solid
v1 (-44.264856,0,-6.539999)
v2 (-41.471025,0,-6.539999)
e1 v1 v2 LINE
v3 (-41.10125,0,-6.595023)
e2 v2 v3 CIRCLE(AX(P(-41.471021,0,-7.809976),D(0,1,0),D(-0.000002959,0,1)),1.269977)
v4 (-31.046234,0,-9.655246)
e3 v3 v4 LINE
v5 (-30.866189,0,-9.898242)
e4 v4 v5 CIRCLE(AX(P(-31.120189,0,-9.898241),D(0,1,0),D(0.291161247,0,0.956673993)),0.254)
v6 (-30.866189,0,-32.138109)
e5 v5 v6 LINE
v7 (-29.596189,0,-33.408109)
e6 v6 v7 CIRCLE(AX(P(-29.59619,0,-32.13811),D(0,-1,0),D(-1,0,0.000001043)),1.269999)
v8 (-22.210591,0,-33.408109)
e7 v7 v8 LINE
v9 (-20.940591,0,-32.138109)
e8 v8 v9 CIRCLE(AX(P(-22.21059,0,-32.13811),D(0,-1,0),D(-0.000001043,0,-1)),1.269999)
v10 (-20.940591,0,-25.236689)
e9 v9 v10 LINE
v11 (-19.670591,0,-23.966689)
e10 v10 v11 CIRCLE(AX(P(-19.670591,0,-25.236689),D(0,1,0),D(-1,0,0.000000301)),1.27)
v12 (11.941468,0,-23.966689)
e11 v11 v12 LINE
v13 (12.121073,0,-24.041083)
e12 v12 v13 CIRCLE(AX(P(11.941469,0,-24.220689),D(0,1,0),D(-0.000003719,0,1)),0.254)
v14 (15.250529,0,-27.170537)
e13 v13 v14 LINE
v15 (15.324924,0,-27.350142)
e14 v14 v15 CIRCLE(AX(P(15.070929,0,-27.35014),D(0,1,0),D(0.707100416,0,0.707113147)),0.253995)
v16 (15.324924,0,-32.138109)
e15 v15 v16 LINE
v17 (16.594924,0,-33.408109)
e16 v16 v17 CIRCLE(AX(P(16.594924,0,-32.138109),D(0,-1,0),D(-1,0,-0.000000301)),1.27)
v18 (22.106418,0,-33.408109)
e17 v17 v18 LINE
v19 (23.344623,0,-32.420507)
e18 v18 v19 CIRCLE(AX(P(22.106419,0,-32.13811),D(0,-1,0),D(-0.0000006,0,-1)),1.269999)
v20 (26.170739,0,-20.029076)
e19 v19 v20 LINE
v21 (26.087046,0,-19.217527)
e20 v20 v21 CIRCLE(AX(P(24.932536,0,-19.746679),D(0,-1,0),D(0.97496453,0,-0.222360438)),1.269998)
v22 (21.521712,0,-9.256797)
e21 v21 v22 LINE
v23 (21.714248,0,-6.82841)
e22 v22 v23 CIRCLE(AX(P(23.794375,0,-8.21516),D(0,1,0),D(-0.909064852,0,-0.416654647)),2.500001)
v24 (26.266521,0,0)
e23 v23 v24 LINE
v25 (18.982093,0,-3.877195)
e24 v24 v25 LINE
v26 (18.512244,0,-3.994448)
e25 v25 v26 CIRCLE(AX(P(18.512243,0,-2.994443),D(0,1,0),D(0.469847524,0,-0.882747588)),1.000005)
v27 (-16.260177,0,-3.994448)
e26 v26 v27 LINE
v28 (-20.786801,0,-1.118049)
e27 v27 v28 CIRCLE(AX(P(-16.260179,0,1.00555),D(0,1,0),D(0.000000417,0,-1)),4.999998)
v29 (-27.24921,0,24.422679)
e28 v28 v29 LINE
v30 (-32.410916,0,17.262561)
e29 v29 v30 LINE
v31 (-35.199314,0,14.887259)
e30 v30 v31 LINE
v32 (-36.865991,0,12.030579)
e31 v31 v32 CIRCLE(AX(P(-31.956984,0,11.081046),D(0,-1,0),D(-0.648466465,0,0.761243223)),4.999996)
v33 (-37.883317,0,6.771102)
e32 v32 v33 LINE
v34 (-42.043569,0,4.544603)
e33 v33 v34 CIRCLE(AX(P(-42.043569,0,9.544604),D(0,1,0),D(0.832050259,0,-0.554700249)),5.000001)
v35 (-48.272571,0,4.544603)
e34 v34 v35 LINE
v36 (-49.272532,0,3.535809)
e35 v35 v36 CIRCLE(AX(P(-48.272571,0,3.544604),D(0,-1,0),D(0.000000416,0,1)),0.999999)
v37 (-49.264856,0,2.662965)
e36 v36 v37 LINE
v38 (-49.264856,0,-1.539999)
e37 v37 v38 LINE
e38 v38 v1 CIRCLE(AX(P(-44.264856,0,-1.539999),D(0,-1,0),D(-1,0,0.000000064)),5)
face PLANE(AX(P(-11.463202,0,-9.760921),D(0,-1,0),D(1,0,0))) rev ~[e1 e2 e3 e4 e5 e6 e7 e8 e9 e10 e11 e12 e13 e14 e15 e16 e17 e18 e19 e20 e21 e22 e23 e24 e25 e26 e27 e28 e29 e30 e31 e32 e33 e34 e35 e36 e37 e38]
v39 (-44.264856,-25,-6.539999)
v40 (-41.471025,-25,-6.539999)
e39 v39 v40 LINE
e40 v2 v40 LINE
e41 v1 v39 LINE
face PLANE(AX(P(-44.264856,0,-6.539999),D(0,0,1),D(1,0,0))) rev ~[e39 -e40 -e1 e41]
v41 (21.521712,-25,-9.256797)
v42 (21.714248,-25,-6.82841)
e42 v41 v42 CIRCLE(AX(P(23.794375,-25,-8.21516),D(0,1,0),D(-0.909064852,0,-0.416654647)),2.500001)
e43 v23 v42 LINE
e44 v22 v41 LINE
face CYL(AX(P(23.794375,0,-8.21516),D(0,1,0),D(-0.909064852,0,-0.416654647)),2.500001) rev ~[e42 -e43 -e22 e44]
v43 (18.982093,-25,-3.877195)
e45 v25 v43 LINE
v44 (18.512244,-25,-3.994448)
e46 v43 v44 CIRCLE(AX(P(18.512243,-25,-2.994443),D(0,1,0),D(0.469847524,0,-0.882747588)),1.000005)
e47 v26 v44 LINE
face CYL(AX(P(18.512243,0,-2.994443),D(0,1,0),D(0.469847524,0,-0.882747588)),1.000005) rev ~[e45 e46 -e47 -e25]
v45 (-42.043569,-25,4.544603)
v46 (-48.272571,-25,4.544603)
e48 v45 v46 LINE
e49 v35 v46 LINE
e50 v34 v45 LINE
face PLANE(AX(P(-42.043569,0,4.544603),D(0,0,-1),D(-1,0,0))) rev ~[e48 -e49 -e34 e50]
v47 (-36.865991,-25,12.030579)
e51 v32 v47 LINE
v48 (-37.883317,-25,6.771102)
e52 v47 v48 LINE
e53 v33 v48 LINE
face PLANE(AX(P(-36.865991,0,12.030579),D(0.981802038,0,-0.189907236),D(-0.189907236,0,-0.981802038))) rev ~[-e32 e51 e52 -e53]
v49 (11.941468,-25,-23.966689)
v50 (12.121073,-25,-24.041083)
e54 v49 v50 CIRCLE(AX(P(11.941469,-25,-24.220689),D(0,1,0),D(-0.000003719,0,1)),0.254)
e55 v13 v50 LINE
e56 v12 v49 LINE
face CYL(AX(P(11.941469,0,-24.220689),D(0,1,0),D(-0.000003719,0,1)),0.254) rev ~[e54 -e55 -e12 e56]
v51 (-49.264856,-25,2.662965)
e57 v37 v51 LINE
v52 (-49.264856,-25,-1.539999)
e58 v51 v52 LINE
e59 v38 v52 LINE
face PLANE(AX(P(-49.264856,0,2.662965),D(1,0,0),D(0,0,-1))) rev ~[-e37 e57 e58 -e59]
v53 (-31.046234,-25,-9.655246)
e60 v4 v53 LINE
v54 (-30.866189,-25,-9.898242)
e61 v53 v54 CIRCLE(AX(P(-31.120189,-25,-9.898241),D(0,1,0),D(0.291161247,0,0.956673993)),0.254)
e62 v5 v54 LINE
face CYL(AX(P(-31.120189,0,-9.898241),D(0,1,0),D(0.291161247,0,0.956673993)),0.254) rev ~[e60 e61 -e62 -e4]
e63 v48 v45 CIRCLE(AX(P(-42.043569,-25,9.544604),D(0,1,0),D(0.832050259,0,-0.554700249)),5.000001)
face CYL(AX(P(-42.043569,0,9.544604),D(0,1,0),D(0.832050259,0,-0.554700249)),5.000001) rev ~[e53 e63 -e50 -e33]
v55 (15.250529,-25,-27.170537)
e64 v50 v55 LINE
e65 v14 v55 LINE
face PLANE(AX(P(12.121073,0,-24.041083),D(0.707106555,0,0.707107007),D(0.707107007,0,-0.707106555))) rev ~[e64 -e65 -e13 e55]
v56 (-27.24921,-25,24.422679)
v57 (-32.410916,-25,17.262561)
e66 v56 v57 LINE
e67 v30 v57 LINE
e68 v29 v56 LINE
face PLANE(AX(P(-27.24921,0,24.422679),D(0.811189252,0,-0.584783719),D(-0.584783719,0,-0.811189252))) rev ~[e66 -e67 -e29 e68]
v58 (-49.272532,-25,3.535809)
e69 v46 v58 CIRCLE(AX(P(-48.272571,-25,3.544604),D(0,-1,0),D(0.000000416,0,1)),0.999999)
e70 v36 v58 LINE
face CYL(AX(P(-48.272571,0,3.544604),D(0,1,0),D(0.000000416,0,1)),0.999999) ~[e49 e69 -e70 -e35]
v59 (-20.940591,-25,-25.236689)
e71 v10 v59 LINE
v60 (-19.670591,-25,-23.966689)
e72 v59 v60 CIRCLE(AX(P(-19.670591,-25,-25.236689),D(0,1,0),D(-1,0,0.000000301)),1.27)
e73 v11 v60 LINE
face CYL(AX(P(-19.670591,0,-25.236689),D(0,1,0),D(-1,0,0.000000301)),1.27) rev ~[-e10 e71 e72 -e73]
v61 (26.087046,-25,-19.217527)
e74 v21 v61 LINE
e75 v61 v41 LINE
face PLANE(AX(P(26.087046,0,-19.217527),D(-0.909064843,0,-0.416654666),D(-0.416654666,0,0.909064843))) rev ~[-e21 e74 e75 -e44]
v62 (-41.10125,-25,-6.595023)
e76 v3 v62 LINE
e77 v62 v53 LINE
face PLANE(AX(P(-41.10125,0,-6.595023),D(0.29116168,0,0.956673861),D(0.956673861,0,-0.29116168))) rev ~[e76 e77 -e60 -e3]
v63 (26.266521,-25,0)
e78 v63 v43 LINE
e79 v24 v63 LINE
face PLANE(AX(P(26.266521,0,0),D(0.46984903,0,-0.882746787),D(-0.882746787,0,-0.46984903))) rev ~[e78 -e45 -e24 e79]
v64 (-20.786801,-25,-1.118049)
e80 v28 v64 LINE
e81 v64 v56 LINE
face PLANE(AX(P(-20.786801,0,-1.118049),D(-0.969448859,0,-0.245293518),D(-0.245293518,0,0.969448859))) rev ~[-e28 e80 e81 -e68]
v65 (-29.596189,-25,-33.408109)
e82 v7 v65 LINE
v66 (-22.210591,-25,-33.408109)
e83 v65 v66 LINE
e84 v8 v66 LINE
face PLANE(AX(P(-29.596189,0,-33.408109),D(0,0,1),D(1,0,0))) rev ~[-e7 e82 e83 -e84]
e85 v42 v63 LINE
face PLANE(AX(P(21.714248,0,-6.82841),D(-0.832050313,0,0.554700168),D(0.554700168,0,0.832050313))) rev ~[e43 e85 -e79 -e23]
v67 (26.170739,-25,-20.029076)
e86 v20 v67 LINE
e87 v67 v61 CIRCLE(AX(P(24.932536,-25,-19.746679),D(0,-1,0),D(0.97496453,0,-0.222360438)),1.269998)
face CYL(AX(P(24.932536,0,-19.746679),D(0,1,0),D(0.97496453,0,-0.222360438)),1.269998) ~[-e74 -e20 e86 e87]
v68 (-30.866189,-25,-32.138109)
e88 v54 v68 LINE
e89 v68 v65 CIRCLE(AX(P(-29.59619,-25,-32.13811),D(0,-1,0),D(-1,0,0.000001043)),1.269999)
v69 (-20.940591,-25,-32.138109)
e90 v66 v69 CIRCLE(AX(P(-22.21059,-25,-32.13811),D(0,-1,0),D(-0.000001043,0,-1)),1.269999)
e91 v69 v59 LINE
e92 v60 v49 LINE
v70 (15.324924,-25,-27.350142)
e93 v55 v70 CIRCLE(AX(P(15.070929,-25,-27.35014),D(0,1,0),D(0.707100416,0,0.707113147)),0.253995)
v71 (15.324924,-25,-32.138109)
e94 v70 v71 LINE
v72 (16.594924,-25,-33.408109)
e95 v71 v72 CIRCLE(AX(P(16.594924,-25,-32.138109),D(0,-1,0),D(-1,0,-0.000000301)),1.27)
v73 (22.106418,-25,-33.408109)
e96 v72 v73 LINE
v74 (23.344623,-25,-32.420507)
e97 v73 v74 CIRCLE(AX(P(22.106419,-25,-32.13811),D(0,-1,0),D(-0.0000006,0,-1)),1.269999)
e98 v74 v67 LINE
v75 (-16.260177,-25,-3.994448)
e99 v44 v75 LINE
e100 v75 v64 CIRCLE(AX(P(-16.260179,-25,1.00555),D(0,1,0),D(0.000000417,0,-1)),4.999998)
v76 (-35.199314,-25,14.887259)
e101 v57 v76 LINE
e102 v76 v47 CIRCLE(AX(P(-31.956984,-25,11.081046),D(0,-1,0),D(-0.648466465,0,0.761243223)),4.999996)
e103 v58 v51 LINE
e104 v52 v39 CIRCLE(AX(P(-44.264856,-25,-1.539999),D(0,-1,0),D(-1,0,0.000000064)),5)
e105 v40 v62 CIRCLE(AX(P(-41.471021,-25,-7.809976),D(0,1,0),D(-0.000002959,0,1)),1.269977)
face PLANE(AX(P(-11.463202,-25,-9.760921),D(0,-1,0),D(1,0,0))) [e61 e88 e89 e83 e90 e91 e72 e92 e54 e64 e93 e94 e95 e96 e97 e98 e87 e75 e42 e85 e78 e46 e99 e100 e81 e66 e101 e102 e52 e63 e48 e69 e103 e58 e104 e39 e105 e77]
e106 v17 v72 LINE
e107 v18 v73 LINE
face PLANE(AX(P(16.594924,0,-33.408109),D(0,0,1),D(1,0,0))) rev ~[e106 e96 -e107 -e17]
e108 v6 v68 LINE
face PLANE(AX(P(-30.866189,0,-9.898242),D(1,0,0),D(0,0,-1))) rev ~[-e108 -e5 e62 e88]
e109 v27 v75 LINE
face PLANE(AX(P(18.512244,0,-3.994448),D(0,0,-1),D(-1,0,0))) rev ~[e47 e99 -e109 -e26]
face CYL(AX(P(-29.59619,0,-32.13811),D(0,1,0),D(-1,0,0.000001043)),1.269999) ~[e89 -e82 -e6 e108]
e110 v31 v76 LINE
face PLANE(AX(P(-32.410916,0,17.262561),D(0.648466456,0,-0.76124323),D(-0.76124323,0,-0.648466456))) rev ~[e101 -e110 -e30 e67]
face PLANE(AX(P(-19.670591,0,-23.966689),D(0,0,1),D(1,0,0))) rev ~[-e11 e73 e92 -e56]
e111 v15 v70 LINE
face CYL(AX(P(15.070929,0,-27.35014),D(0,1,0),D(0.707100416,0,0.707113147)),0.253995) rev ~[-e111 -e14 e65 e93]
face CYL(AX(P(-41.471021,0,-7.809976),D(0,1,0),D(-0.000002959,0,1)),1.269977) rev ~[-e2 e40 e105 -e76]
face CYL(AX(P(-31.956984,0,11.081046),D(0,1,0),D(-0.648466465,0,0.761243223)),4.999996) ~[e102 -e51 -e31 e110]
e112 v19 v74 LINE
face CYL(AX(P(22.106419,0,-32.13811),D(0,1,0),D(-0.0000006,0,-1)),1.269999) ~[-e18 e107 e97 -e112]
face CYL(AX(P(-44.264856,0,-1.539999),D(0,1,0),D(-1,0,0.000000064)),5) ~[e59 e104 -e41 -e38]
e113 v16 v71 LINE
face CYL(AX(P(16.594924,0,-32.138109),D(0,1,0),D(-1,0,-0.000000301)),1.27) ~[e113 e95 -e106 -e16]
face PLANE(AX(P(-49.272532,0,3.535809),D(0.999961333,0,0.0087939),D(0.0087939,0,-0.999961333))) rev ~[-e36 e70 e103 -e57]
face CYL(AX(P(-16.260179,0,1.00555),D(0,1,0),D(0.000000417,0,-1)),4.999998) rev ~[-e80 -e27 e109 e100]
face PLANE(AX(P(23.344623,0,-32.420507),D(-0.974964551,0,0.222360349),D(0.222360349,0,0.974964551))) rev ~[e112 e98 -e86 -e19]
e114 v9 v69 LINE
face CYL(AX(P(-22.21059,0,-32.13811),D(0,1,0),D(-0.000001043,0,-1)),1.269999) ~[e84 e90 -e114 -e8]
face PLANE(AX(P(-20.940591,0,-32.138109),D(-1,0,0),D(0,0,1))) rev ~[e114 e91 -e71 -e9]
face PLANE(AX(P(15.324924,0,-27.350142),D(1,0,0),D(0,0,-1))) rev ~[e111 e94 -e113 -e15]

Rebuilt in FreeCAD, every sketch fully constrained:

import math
import FreeCAD as App
import Part
import Sketcher

V = App.Vector
Q = App.Units.Quantity

doc = App.newDocument("Part")
params = doc.addObject("Spreadsheet::Sheet", "Params")
for row, (alias, value) in enumerate([
    ("sketch1_radius", "0.01 in"),
    ("sketch1_radius2", "0.0499999 in"),
    ("sketch1_radius3", "0.0499999 in"),
    ("sketch1_radius4", "0.05 in"),
    ("sketch1_radius5", "0.01 in"),
    ("pad1_length", "25 mm"),
], start=1):
    params.set(f"A{row}", alias)
    params.set(f"B{row}", "=" + value)
    params.setAlias(f"B{row}", alias)

body = doc.addObject("PartDesign::Body", "Body")

sketch1 = doc.addObject("Sketcher::SketchObject", "Sketch")
body.addObject(sketch1)
sketch1.AttachmentSupport = (doc.XZ_Plane, [""])
sketch1.MapMode = "FlatFace"
sketch1.addGeometry([
    Part.LineSegment(V(-49.272532, 3.535809, 0), V(-49.264856, 2.662965, 0)),
    Part.LineSegment(V(-49.264856, 2.662965, 0), V(-49.264856, -1.539999, 0)),
    Part.ArcOfCircle(Part.Circle(V(-44.264856, -1.539999, 0), V(0, 0, 1), 5), math.radians(179.999996), math.radians(270.000004)),
    Part.LineSegment(V(-44.264856, -6.539999, 0), V(-41.471025, -6.539999, 0)),
    Part.ArcOfCircle(Part.Circle(V(-41.471021, -7.809976, 0), V(0, 0, 1), 1.269977), math.radians(73.072358), math.radians(90.00017)),
    Part.LineSegment(V(-41.10125, -6.595023, 0), V(-31.046234, -9.655246, 0)),
    Part.ArcOfCircle(Part.Circle(V(-31.120189, -9.898241, 0), V(0, 0, 1), 0.254), math.radians(-0.000195), math.radians(73.072509)),
    Part.LineSegment(V(-30.866189, -9.898242, 0), V(-30.866189, -32.138109, 0)),
    Part.ArcOfCircle(Part.Circle(V(-29.59619, -32.13811, 0), V(0, 0, 1), 1.269999), math.radians(179.99994), math.radians(270.00006)),
    Part.LineSegment(V(-29.596189, -33.408109, 0), V(-22.210591, -33.408109, 0)),
    Part.ArcOfCircle(Part.Circle(V(-22.21059, -32.13811, 0), V(0, 0, 1), 1.269999), math.radians(-90.00006), math.radians(0.00006)),
    Part.LineSegment(V(-20.940591, -32.138109, 0), V(-20.940591, -25.236689, 0)),
    Part.ArcOfCircle(Part.Circle(V(-19.670591, -25.236689, 0), V(0, 0, 1), 1.27), math.radians(90.000017), math.radians(179.999983)),
    Part.LineSegment(V(-19.670591, -23.966689, 0), V(11.941468, -23.966689, 0)),
    Part.ArcOfCircle(Part.Circle(V(11.941469, -24.220689, 0), V(0, 0, 1), 0.254), math.radians(45.000237), math.radians(90.000213)),
    Part.LineSegment(V(12.121073, -24.041083, 0), V(15.250529, -27.170537, 0)),
    Part.ArcOfCircle(Part.Circle(V(15.070929, -27.35014, 0), V(0, 0, 1), 0.253995), math.radians(-0.000422), math.radians(45.000516)),
    Part.LineSegment(V(15.324924, -27.350142, 0), V(15.324924, -32.138109, 0)),
    Part.ArcOfCircle(Part.Circle(V(16.594924, -32.138109, 0), V(0, 0, 1), 1.27), math.radians(-179.999983), math.radians(-90.000017)),
    Part.LineSegment(V(16.594924, -33.408109, 0), V(22.106418, -33.408109, 0)),
    Part.ArcOfCircle(Part.Circle(V(22.106419, -32.13811, 0), V(0, 0, 1), 1.269999), math.radians(-90.000034), math.radians(-12.847692)),
    Part.LineSegment(V(23.344623, -32.420507, 0), V(26.170739, -20.029076, 0)),
    Part.ArcOfCircle(Part.Circle(V(24.932536, -19.746679, 0), V(0, 0, 1), 1.269998), math.radians(-12.847711), math.radians(24.62362)),
    Part.LineSegment(V(26.087046, -19.217527, 0), V(21.521712, -9.256797, 0)),
    Part.ArcOfCircle(Part.Circle(V(23.794375, -8.21516, 0), V(0, 0, 1), 2.500001), math.radians(146.309951), math.radians(204.623561)),
    Part.LineSegment(V(21.714248, -6.82841, 0), V(26.266521, 0, 0)),
    Part.LineSegment(V(26.266521, 0, 0), V(18.982093, -3.877195, 0)),
    Part.ArcOfCircle(Part.Circle(V(18.512243, -2.994443, 0), V(0, 0, 1), 1.000005), math.radians(-89.99995), math.radians(-61.975601)),
    Part.LineSegment(V(18.512244, -3.994448, 0), V(-16.260177, -3.994448, 0)),
    Part.ArcOfCircle(Part.Circle(V(-16.260179, 1.00555, 0), V(0, 0, 1), 4.999998), math.radians(-154.867062), math.radians(-89.999976)),
    Part.LineSegment(V(-20.786801, -1.118049, 0), V(-27.24921, 24.422679, 0)),
    Part.LineSegment(V(-27.24921, 24.422679, 0), V(-32.410916, 17.262561, 0)),
    Part.LineSegment(V(-32.410916, 17.262561, 0), V(-35.199314, 14.887259, 0)),
    Part.ArcOfCircle(Part.Circle(V(-31.956984, 11.081046, 0), V(0, 0, 1), 4.999996), math.radians(130.426079), math.radians(169.052656)),
    Part.LineSegment(V(-36.865991, 12.030579, 0), V(-37.883317, 6.771102, 0)),
    Part.ArcOfCircle(Part.Circle(V(-42.043569, 9.544604, 0), V(0, 0, 1), 5.000001), math.radians(-90.000003), math.radians(-33.690071)),
    Part.LineSegment(V(-42.043569, 4.544603, 0), V(-48.272571, 4.544603, 0)),
    Part.ArcOfCircle(Part.Circle(V(-48.272571, 3.544604, 0), V(0, 0, 1), 0.999999), math.radians(89.999976), math.radians(180.503908)),
], False)
sketch1.addConstraint([
    Sketcher.Constraint("Coincident", 0, 2, 1, 1),
    Sketcher.Constraint("Coincident", 1, 2, 2, 1),
    Sketcher.Constraint("Coincident", 2, 2, 3, 1),
    Sketcher.Constraint("Coincident", 3, 2, 4, 2),
    Sketcher.Constraint("Coincident", 4, 1, 5, 1),
    Sketcher.Constraint("Coincident", 5, 2, 6, 2),
    Sketcher.Constraint("Coincident", 6, 1, 7, 1),
    Sketcher.Constraint("Coincident", 7, 2, 8, 1),
    Sketcher.Constraint("Coincident", 8, 2, 9, 1),
    Sketcher.Constraint("Coincident", 9, 2, 10, 1),
    Sketcher.Constraint("Coincident", 10, 2, 11, 1),
    Sketcher.Constraint("Coincident", 11, 2, 12, 2),
    Sketcher.Constraint("Coincident", 12, 1, 13, 1),
    Sketcher.Constraint("Coincident", 13, 2, 14, 2),
    Sketcher.Constraint("Coincident", 14, 1, 15, 1),
    Sketcher.Constraint("Coincident", 15, 2, 16, 2),
    Sketcher.Constraint("Coincident", 16, 1, 17, 1),
    Sketcher.Constraint("Coincident", 17, 2, 18, 1),
    Sketcher.Constraint("Coincident", 18, 2, 19, 1),
    Sketcher.Constraint("Coincident", 19, 2, 20, 1),
    Sketcher.Constraint("Coincident", 20, 2, 21, 1),
    Sketcher.Constraint("Coincident", 21, 2, 22, 1),
    Sketcher.Constraint("Coincident", 22, 2, 23, 1),
    Sketcher.Constraint("Coincident", 23, 2, 24, 2),
    Sketcher.Constraint("Coincident", 24, 1, 25, 1),
    Sketcher.Constraint("Coincident", 25, 2, 26, 1),
    Sketcher.Constraint("Coincident", 26, 2, 27, 2),
    Sketcher.Constraint("Coincident", 27, 1, 28, 1),
    Sketcher.Constraint("Coincident", 28, 2, 29, 2),
    Sketcher.Constraint("Coincident", 29, 1, 30, 1),
    Sketcher.Constraint("Coincident", 30, 2, 31, 1),
    Sketcher.Constraint("Coincident", 31, 2, 32, 1),
    Sketcher.Constraint("Coincident", 32, 2, 33, 1),
    Sketcher.Constraint("Coincident", 33, 2, 34, 1),
    Sketcher.Constraint("Coincident", 34, 2, 35, 2),
    Sketcher.Constraint("Coincident", 35, 1, 36, 1),
    Sketcher.Constraint("Coincident", 36, 2, 37, 1),
    Sketcher.Constraint("Coincident", 37, 2, 0, 1),
    Sketcher.Constraint("Vertical", 1),
    Sketcher.Constraint("Horizontal", 3),
    Sketcher.Constraint("Vertical", 7),
    Sketcher.Constraint("Horizontal", 9),
    Sketcher.Constraint("Vertical", 11),
    Sketcher.Constraint("Horizontal", 13),
    Sketcher.Constraint("Vertical", 17),
    Sketcher.Constraint("Horizontal", 19),
    Sketcher.Constraint("Horizontal", 28),
    Sketcher.Constraint("Horizontal", 36),
    Sketcher.Constraint("PointOnObject", 25, 2, -1),
    Sketcher.Constraint("Radius", 6, Q("0.01 in")),
    Sketcher.Constraint("Radius", 8, Q("0.0499999 in")),
    Sketcher.Constraint("Radius", 10, Q("0.0499999 in")),
    Sketcher.Constraint("Radius", 12, Q("0.05 in")),
    Sketcher.Constraint("Radius", 14, Q("0.01 in")),
    Sketcher.Constraint("Radius", 18, Q("0.05 in")),
    Sketcher.Constraint("Radius", 20, Q("0.05 in")),
    Sketcher.Constraint("Radius", 22, Q("0.0499999 in")),
    Sketcher.Constraint("DistanceX", 9, 2, 12, 3, Q("0.1 in")),
    Sketcher.Constraint("DistanceX", 10, 3, 12, 1, Q("0.0999999 in")),
    Sketcher.Constraint("Radius", 2, 5.0),
    Sketcher.Constraint("Radius", 24, 2.500001),
    Sketcher.Constraint("Radius", 35, 5.000001),
    Sketcher.Constraint("Radius", 37, 0.999999),
    Sketcher.Constraint("DistanceX", 16, 3, 18, 3, Q("0.0599998 in")),
    Sketcher.Constraint("DistanceX", 7, 2, 8, 2, Q("0.05 in")),
    Sketcher.Constraint("DistanceY", 8, 2, 7, 2, Q("0.05 in")),
    Sketcher.Constraint("DistanceY", 9, 2, 10, 2, Q("0.05 in")),
    Sketcher.Constraint("DistanceY", 11, 2, 12, 1, Q("0.05 in")),
    Sketcher.Constraint("DistanceX", 17, 2, 18, 2, Q("0.05 in")),
    Sketcher.Constraint("DistanceY", 18, 2, 17, 2, Q("0.05 in")),
    Sketcher.Constraint("Radius", 4, 1.269977),
    Sketcher.Constraint("Radius", 27, 1.000005),
    Sketcher.Constraint("Radius", 29, 4.999998),
    Sketcher.Constraint("Radius", 33, 4.999996),
    Sketcher.Constraint("Distance", 26, 8.252002),
    Sketcher.Constraint("DistanceX", 3, 1, 3, 2, 2.793831),
    Sketcher.Constraint("DistanceX", 13, 1, 13, 2, 31.612059),
    Sketcher.Constraint("DistanceX", 28, 2, 28, 1, 34.772421),
    Sketcher.Constraint("DistanceY", 11, 1, 11, 2, 6.90142),
    Sketcher.Constraint("DistanceY", 2, 3, -1, 1, 1.539999),
    Sketcher.Constraint("DistanceY", 1, 2, -1, 1, 1.539999),
    Sketcher.Constraint("DistanceX", 29, 1, -1, 1, 20.786801),
    Sketcher.Constraint("DistanceX", 8, 3, 10, 3, 7.385601),
    Sketcher.Constraint("DistanceY", 16, 3, 6, 3, 17.451899),
    Sketcher.Constraint("DistanceX", 1, 2, 2, 2, 5.0),
    Sketcher.Constraint("DistanceX", 16, 3, 15, 2, 0.1796),
    Sketcher.Constraint("DistanceY", 19, 2, 20, 2, 0.987602),
    Sketcher.Constraint("DistanceX", 18, 3, 20, 2, 6.749699),
    Sketcher.Constraint("DistanceX", 24, 1, 22, 2, 4.372798),
    Sketcher.Constraint("DistanceY", 29, 1, 29, 3, 2.123599),
    Sketcher.Constraint("DistanceX", 32, 2, 31, 2, 2.788398),
    Sketcher.Constraint("DistanceY", 34, 2, 35, 3, 2.773502),
    Sketcher.Constraint("DistanceY", 2, 3, 34, 2, 8.311101),
    Sketcher.Constraint("Distance", 5, 10.510391),
    Sketcher.Constraint("DistanceX", 19, 1, 19, 2, 5.511494),
    Sketcher.Constraint("DistanceX", 36, 2, 36, 1, 6.229002),
    Sketcher.Constraint("DistanceY", 1, 2, 1, 1, 4.202964),
    Sketcher.Constraint("DistanceY", 7, 2, 7, 1, 22.239867),
    Sketcher.Constraint("DistanceY", 17, 2, 17, 1, 4.787967),
    Sketcher.Constraint("DistanceX", 4, 3, -1, 1, 41.471021),
    Sketcher.Constraint("DistanceX", 6, 3, -1, 1, 31.120189),
    Sketcher.Constraint("DistanceY", 6, 3, -1, 1, 9.898241),
    Sketcher.Constraint("DistanceY", 8, 3, -1, 1, 32.13811),
    Sketcher.Constraint("DistanceX", -1, 1, 14, 3, 11.941469),
    Sketcher.Constraint("DistanceX", -1, 1, 16, 3, 15.070929),
    Sketcher.Constraint("DistanceY", 18, 3, -1, 1, 32.138109),
    Sketcher.Constraint("DistanceY", 22, 3, -1, 1, 19.746679),
    Sketcher.Constraint("DistanceY", 24, 3, -1, 1, 8.21516),
    Sketcher.Constraint("DistanceY", -1, 1, 29, 3, 1.00555),
    Sketcher.Constraint("DistanceX", 35, 3, -1, 1, 42.043569),
    Sketcher.Constraint("DistanceX", 37, 3, -1, 1, 48.272571),
    Sketcher.Constraint("DistanceX", 4, 1, -1, 1, 41.10125),
    Sketcher.Constraint("DistanceX", -1, 1, 21, 2, 26.170739),
    Sketcher.Constraint("DistanceY", 24, 1, -1, 1, 6.82841),
    Sketcher.Constraint("DistanceX", -1, 1, 25, 2, 26.266521),
    Sketcher.Constraint("DistanceX", 30, 2, -1, 1, 27.24921),
    Sketcher.Constraint("DistanceY", -1, 1, 30, 2, 24.422679),
    Sketcher.Constraint("DistanceY", -1, 1, 31, 2, 17.262561),
    Sketcher.Constraint("DistanceY", -1, 1, 32, 2, 14.887259),
    Sketcher.Constraint("DistanceX", 33, 2, -1, 1, 36.865991),
    Sketcher.Constraint("DistanceY", -1, 1, 33, 2, 12.030579),
    Sketcher.Constraint("DistanceX", 35, 1, -1, 1, 42.043569),
    Sketcher.Constraint("DistanceY", -1, 1, 37, 2, 3.535809),
    Sketcher.Constraint("DistanceX", 18, 3, 22, 3, 8.337612),
    Sketcher.Constraint("DistanceX", 24, 3, 22, 3, 1.138161),
    Sketcher.Constraint("DistanceX", 27, 3, 24, 3, 5.282132),
    Sketcher.Constraint("DistanceY", 4, 3, 33, 3, 18.891022),
    Sketcher.Constraint("DistanceX", 0, 2, 33, 3, 17.307872),
    Sketcher.Constraint("DistanceX", 14, 1, 18, 3, 4.473851),
    Sketcher.Constraint("DistanceX", 27, 3, 23, 2, 3.009469),
    Sketcher.Constraint("DistanceX", 27, 1, 26, 2, 0.469849),
])
sketch1.setExpression("Constraints[49]", "Params.sketch1_radius")
sketch1.setExpression("Constraints[50]", "Params.sketch1_radius2")
sketch1.setExpression("Constraints[51]", "Params.sketch1_radius3")
sketch1.setExpression("Constraints[52]", "Params.sketch1_radius4")
sketch1.setExpression("Constraints[53]", "Params.sketch1_radius5")
pad1 = doc.addObject("PartDesign::Pad", "Pad")
body.addObject(pad1)
pad1.Profile = sketch1
pad1.setExpression("Length", "Params.pad1_length")

doc.recompute()
